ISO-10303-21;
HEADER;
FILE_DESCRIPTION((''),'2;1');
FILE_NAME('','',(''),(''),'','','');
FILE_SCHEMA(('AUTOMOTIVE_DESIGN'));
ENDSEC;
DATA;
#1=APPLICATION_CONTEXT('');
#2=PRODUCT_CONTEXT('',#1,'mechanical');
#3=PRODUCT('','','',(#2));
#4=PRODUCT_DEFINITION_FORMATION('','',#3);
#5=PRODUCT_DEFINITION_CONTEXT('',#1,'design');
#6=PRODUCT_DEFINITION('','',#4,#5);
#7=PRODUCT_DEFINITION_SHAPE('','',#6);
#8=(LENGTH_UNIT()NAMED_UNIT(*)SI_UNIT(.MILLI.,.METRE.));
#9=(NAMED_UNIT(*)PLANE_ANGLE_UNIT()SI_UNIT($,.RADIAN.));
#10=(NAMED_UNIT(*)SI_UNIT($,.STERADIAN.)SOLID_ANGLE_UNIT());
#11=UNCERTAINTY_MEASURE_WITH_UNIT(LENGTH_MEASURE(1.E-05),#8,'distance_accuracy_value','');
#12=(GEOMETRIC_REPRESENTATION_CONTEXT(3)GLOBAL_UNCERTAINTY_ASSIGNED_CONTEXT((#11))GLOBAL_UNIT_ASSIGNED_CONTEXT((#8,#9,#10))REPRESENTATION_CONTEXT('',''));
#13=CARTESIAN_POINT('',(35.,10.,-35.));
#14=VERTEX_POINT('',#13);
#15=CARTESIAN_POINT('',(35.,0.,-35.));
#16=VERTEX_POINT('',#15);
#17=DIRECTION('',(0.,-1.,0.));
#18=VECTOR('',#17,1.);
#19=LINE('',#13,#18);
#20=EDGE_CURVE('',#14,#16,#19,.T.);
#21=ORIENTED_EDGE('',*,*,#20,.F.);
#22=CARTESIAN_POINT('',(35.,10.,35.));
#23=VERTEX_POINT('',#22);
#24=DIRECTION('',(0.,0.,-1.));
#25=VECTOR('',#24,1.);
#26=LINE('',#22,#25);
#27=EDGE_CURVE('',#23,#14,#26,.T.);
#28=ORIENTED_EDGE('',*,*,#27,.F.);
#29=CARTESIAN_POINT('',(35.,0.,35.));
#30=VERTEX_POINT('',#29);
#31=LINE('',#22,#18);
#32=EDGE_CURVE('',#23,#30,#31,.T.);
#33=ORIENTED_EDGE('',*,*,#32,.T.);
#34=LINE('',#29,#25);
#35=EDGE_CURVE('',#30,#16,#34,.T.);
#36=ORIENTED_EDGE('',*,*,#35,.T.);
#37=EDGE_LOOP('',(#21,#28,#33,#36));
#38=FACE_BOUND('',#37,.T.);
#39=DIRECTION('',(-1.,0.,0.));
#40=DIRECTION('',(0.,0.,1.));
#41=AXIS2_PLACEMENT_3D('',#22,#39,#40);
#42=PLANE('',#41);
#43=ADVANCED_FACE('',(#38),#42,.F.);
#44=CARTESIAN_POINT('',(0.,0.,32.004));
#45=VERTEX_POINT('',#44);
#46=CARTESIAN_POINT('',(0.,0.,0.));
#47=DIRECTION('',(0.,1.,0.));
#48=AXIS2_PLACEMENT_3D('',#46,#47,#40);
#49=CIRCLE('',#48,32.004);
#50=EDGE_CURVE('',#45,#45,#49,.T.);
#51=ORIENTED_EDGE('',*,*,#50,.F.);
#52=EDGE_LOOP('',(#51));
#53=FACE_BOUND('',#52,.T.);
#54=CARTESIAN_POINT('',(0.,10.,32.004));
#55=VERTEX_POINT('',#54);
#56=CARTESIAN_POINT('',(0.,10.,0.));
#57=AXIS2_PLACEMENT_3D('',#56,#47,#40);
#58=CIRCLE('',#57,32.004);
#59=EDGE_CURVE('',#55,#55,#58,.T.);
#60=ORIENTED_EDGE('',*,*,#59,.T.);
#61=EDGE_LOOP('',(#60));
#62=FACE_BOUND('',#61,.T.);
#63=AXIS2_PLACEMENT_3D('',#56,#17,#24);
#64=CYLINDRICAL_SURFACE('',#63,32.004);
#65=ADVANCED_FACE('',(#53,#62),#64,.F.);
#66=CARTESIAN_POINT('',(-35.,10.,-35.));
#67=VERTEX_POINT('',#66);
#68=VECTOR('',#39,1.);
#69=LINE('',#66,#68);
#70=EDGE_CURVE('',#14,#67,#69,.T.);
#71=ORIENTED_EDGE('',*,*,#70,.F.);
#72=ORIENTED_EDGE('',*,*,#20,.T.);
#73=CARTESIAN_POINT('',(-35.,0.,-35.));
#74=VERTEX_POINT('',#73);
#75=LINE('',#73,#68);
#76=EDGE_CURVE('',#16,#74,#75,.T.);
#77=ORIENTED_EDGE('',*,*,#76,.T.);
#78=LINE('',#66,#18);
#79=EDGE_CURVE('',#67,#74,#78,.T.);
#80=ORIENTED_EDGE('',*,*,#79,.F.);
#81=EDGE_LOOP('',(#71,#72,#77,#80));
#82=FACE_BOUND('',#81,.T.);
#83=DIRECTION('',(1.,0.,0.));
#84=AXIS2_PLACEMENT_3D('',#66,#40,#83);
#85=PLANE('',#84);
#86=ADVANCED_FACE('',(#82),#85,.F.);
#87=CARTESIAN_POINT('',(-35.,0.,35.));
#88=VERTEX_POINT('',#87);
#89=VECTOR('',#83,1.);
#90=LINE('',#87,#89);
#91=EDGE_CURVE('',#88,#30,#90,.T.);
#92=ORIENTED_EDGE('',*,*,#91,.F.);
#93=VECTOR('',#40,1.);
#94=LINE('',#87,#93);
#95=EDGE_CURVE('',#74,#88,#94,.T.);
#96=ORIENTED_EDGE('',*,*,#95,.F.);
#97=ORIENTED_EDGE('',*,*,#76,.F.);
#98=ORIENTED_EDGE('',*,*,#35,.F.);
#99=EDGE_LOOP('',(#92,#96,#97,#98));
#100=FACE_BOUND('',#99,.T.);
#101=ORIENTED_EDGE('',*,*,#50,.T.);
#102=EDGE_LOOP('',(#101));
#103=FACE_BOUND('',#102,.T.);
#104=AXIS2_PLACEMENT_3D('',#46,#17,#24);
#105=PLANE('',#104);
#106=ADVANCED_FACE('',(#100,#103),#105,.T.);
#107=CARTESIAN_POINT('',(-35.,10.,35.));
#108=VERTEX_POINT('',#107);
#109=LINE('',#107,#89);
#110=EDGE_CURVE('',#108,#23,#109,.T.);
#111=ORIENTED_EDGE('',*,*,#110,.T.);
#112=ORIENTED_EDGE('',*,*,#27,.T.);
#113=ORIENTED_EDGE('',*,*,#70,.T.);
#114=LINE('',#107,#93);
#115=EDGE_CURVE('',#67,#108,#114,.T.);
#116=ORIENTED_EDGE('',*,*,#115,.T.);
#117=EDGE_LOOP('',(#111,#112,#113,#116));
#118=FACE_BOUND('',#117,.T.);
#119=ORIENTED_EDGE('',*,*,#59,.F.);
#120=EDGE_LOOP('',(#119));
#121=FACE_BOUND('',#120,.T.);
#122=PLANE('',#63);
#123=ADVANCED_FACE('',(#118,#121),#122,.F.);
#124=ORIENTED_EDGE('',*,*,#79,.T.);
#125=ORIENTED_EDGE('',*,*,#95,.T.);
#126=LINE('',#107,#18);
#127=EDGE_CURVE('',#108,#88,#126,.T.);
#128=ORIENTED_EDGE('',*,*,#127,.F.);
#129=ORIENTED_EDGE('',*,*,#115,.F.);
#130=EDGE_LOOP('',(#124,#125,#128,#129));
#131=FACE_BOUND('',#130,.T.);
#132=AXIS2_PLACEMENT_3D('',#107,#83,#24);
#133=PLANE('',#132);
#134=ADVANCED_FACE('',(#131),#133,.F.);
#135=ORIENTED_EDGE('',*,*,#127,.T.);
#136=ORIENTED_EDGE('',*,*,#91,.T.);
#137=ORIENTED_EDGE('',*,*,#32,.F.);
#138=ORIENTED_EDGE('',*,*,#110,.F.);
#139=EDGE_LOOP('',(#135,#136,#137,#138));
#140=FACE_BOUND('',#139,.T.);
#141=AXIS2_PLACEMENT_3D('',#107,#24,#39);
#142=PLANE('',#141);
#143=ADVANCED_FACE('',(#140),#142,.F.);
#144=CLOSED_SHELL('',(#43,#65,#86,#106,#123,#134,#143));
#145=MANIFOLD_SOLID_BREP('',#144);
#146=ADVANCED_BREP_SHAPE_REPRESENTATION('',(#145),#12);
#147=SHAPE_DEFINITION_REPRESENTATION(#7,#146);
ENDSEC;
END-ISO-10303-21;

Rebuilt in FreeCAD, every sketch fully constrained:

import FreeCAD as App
import Part
import Sketcher
Q = App.Units.Quantity

doc = App.newDocument("Part")
params = doc.addObject("Spreadsheet::Sheet", "Params")
for row, (alias, value) in enumerate([
    ("sketch1_width", "70 mm"),
    ("pad1_length", "10 mm"),
], start=1):
    params.set(f"A{row}", alias)
    params.set(f"B{row}", "=" + value)
    params.setAlias(f"B{row}", alias)

body = doc.addObject("PartDesign::Body", "Body")

sketch1 = doc.addObject("Sketcher::SketchObject", "Sketch")
body.addObject(sketch1)
sketch1.AttachmentSupport = (doc.XZ_Plane, [""])
sketch1.MapMode = "FlatFace"
sketch1.addGeometry(Part.LineSegment(App.Vector(-35, -35, 0), App.Vector(-35, 35, 0)), False)
sketch1.addGeometry(Part.LineSegment(App.Vector(-35, 35, 0), App.Vector(35, 35, 0)), False)
sketch1.addGeometry(Part.LineSegment(App.Vector(35, 35, 0), App.Vector(35, -35, 0)), False)
sketch1.addGeometry(Part.LineSegment(App.Vector(35, -35, 0), App.Vector(-35, -35, 0)), False)
sketch1.addGeometry(Part.Circle(App.Vector(0, 0, 0), App.Vector(0, 0, 1), 32), False)
sketch1.addConstraint(Sketcher.Constraint("Coincident", 0, 2, 1, 1))
sketch1.addConstraint(Sketcher.Constraint("Coincident", 1, 2, 2, 1))
sketch1.addConstraint(Sketcher.Constraint("Coincident", 2, 2, 3, 1))
sketch1.addConstraint(Sketcher.Constraint("Coincident", 3, 2, 0, 1))
sketch1.addConstraint(Sketcher.Constraint("Vertical", 0))
sketch1.addConstraint(Sketcher.Constraint("Horizontal", 1))
sketch1.addConstraint(Sketcher.Constraint("Vertical", 2))
sketch1.addConstraint(Sketcher.Constraint("Horizontal", 3))
sketch1.addConstraint(Sketcher.Constraint("Coincident", 4, 3, -1, 1))
sketch1.addConstraint(Sketcher.Constraint("Symmetric", 0, 2, 2, 2, -1, 1))
sketch1.addConstraint(Sketcher.Constraint("Equal", 3, 0))
sketch1.addConstraint(Sketcher.Constraint("DistanceX", 1, 1, 1, 2, Q("70 mm")))
sketch1.addConstraint(Sketcher.Constraint("Diameter", 4, Q("64.008 mm")))
sketch1.setExpression("Constraints[11]", "Params.sketch1_width")
pad1 = doc.addObject("PartDesign::Pad", "Pad")
body.addObject(pad1)
pad1.Profile = sketch1
pad1.setExpression("Length", "Params.pad1_length")
pad1.Reversed = True

doc.recompute()
